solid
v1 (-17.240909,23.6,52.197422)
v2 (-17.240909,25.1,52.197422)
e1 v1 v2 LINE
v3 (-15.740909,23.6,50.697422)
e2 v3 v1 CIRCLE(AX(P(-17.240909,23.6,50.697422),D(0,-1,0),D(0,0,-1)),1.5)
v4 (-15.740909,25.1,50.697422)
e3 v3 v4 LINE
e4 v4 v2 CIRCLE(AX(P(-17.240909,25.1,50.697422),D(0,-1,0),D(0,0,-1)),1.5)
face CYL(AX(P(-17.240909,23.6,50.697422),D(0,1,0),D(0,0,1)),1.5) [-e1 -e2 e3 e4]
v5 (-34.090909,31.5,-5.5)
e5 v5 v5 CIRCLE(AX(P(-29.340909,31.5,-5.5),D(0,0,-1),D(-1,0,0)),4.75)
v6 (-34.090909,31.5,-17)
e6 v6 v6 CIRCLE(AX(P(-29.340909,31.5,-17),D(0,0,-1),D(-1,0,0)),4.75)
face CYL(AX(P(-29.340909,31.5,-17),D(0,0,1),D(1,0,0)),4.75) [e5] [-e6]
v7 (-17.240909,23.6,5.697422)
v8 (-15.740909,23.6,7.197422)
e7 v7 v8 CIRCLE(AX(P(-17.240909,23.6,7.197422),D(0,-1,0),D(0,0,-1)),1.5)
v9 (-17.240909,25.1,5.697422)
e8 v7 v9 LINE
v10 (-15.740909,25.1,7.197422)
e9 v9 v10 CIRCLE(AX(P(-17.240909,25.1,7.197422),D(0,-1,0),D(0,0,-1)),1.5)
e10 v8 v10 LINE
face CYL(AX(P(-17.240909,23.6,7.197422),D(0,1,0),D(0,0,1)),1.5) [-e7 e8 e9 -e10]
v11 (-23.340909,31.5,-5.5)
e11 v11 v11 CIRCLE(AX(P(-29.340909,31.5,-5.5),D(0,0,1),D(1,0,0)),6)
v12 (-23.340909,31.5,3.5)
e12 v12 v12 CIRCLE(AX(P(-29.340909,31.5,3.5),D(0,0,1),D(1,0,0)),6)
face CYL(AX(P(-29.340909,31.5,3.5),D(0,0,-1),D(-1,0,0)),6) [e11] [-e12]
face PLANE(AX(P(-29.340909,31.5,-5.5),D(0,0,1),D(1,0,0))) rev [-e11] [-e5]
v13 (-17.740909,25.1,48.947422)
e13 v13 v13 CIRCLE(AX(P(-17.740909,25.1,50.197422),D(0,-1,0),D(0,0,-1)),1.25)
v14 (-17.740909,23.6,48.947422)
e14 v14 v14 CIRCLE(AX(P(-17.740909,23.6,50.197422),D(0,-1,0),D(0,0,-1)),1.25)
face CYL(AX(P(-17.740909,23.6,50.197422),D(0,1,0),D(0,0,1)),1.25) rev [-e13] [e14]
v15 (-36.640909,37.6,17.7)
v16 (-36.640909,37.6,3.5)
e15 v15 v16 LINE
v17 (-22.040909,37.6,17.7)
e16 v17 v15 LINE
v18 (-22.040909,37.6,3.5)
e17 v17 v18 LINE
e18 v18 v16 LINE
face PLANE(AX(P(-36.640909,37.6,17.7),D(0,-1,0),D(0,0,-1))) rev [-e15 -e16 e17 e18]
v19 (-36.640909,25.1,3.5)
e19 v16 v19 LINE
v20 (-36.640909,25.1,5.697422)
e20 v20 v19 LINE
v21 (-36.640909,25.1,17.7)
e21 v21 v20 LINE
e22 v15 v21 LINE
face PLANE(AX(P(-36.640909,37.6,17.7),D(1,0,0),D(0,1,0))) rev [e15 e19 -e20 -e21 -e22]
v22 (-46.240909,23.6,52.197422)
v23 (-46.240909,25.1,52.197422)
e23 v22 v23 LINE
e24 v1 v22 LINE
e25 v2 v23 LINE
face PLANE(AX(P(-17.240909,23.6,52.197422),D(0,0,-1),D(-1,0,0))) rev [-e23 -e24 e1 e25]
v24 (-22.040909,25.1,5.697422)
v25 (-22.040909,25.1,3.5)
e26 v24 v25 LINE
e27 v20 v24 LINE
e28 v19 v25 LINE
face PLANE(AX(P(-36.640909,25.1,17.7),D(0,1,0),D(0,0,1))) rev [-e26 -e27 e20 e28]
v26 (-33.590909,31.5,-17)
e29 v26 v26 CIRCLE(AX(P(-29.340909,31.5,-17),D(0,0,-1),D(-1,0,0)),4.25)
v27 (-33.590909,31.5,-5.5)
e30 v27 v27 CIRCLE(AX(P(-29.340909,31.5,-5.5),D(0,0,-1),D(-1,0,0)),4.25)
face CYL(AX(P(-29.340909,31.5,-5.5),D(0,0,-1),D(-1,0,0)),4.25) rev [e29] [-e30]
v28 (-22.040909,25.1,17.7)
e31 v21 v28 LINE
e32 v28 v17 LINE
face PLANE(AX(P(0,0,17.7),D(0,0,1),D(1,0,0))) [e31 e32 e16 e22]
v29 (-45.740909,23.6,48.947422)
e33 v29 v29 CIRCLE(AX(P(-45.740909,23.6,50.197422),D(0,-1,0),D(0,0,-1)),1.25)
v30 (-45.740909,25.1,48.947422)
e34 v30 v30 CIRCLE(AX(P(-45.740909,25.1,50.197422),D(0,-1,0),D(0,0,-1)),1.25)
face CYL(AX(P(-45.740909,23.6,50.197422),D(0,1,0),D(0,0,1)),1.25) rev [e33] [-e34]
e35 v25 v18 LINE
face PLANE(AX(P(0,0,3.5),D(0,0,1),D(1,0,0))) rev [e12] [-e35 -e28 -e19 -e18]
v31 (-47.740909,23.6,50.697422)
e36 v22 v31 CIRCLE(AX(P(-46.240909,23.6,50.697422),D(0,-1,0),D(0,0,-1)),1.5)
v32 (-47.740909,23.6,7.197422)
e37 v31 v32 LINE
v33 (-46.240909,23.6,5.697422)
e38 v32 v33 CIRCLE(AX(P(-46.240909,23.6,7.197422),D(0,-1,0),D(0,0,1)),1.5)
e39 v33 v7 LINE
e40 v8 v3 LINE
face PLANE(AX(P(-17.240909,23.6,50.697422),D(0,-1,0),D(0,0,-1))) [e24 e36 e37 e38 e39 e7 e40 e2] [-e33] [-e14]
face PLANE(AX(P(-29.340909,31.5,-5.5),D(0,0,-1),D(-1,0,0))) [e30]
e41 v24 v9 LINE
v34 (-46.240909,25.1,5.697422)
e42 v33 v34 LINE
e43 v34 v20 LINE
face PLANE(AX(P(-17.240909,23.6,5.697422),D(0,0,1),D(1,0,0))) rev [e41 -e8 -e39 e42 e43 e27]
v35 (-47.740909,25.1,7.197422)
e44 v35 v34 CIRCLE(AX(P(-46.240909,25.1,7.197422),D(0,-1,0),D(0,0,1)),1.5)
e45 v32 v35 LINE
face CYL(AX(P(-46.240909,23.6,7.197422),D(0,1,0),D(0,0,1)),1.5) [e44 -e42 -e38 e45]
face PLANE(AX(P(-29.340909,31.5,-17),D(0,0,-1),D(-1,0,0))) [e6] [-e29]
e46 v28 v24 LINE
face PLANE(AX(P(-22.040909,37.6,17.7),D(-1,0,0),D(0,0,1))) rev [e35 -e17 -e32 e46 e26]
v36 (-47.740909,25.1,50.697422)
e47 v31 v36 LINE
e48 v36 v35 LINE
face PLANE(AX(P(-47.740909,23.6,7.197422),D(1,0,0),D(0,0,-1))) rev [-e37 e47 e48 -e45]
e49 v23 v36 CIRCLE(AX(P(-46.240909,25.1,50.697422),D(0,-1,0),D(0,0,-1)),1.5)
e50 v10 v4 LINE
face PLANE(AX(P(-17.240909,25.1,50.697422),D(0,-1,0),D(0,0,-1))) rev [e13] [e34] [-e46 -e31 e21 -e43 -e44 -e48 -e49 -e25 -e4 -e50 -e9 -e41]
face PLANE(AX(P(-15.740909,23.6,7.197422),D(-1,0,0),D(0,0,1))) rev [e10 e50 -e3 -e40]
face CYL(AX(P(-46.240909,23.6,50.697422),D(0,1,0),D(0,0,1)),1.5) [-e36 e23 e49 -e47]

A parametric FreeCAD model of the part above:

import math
import FreeCAD as App
import Part
import Sketcher
from FreeCAD import Vector

doc = App.newDocument("Part")
body = doc.addObject("PartDesign::Body", "Body")

sketch1 = body.newObject("Sketcher::SketchObject", "Sketch")
sketch1.AttachmentSupport = (doc.getObject("XY_Plane"), [""])
sketch1.MapMode = "FlatFace"
sketch1.addGeometry(Part.Circle(Vector(-29, 32, 0), Vector(0, 0, 1), 6), False)
sketch1.addConstraint([
    Sketcher.Constraint("Diameter", 0, 12.0),
    Sketcher.Constraint("DistanceY", -1, 1, 0, 3, 31.5),
    Sketcher.Constraint("DistanceX", 0, 3, -1, 1, 29.340909),
])
pad1 = body.newObject("PartDesign::Pad", "Pad")
pad1.Profile = sketch1
pad1.Type = "TwoLengths"
pad1.Length = 3.5
pad1.Length2 = 5.5

sketch2 = body.newObject("Sketcher::SketchObject", "Sketch001")
sketch2.AttachmentSupport = (doc.getObject("XY_Plane"), [""])
sketch2.MapMode = "FlatFace"
sketch2.AttachmentOffset = App.Placement(Vector(0, 0, -5.5), App.Rotation())
sketch2.addGeometry(Part.Circle(Vector(-29.3, 31.5, 0), Vector(0, 0, 1), 4.8), False)
sketch2.addConstraint([
    Sketcher.Constraint("Diameter", 0, 9.5),
    Sketcher.Constraint("DistanceY", -1, 1, 0, 3, 31.5),
    Sketcher.Constraint("DistanceX", 0, 3, -1, 1, 29.340909),
])
pad2 = body.newObject("PartDesign::Pad", "Pad001")
pad2.Profile = sketch2
pad2.Length = 11.5
pad2.Reversed = True

sketch3 = body.newObject("Sketcher::SketchObject", "Sketch002")
sketch3.AttachmentSupport = (doc.getObject("XY_Plane"), [""])
sketch3.MapMode = "FlatFace"
sketch3.AttachmentOffset = App.Placement(Vector(0, 0, -17), App.Rotation())
sketch3.addGeometry(Part.Circle(Vector(-29.3, 31.5, 0), Vector(0, 0, 1), 4.2), False)
sketch3.addConstraint([
    Sketcher.Constraint("Diameter", 0, 8.5),
    Sketcher.Constraint("DistanceY", -1, 1, 0, 3, 31.5),
    Sketcher.Constraint("DistanceX", 0, 3, -1, 1, 29.340909),
])
pocket1 = body.newObject("PartDesign::Pocket", "Pocket")
pocket1.Profile = sketch3
pocket1.Length = 11.5
pocket1.Reversed = True

sketch4 = body.newObject("Sketcher::SketchObject", "Sketch003")
sketch4.AttachmentSupport = (doc.getObject("XY_Plane"), [""])
sketch4.MapMode = "FlatFace"
sketch4.AttachmentOffset = App.Placement(Vector(0, 0, 3.5), App.Rotation())
sketch4.addGeometry([
    Part.LineSegment(Vector(-37, 38, 0), Vector(-37, 25, 0)),
    Part.LineSegment(Vector(-37, 25, 0), Vector(-22, 25, 0)),
    Part.LineSegment(Vector(-22, 25, 0), Vector(-22, 38, 0)),
    Part.LineSegment(Vector(-22, 38, 0), Vector(-37, 38, 0)),
], False)
sketch4.addConstraint([
    Sketcher.Constraint("Coincident", 0, 2, 1, 1),
    Sketcher.Constraint("Coincident", 1, 2, 2, 1),
    Sketcher.Constraint("Coincident", 2, 2, 3, 1),
    Sketcher.Constraint("Coincident", 3, 2, 0, 1),
    Sketcher.Constraint("Vertical", 0),
    Sketcher.Constraint("Horizontal", 1),
    Sketcher.Constraint("Vertical", 2),
    Sketcher.Constraint("Horizontal", 3),
    Sketcher.Constraint("DistanceX", 1, 1, 1, 2, 14.6),
    Sketcher.Constraint("DistanceY", 0, 2, 0, 1, 12.5),
    Sketcher.Constraint("DistanceY", -1, 1, 0, 2, 25.1),
    Sketcher.Constraint("DistanceX", 0, 2, -1, 1, 36.640909),
])
pad3 = body.newObject("PartDesign::Pad", "Pad002")
pad3.Profile = sketch4
pad3.Length = 14.2

sketch5 = body.newObject("Sketcher::SketchObject", "Sketch004")
sketch5.AttachmentSupport = (doc.getObject("XZ_Plane"), [""])
sketch5.MapMode = "FlatFace"
sketch5.AttachmentOffset = App.Placement(Vector(0, 0, -25.1), App.Rotation())
sketch5.addGeometry([
    Part.LineSegment(Vector(-46.2, 5.7, 0), Vector(-17.2, 5.7, 0)),
    Part.ArcOfCircle(Part.Circle(Vector(-17.2, 7.2, 0), Vector(0, 0, 1), 1.5), math.radians(-90), math.radians(0)),
    Part.LineSegment(Vector(-15.7, 7.2, 0), Vector(-15.7, 50.7, 0)),
    Part.ArcOfCircle(Part.Circle(Vector(-17.2, 50.7, 0), Vector(0, 0, 1), 1.5), math.radians(0), math.radians(90)),
    Part.LineSegment(Vector(-17.2, 52.2, 0), Vector(-46.2, 52.2, 0)),
    Part.ArcOfCircle(Part.Circle(Vector(-46.2, 50.7, 0), Vector(0, 0, 1), 1.5), math.radians(90), math.radians(180)),
    Part.LineSegment(Vector(-47.7, 50.7, 0), Vector(-47.7, 7.2, 0)),
    Part.ArcOfCircle(Part.Circle(Vector(-46.2, 7.2, 0), Vector(0, 0, 1), 1.5), math.radians(180), math.radians(270)),
    Part.Circle(Vector(-17.7, 50.2, 0), Vector(0, 0, 1), 1.2),
    Part.Circle(Vector(-45.7, 50.2, 0), Vector(0, 0, 1), 1.2),
], False)
sketch5.addConstraint([
    Sketcher.Constraint("Tangent", 0, 2, 1, 1),
    Sketcher.Constraint("Tangent", 1, 2, 2, 1),
    Sketcher.Constraint("Tangent", 2, 2, 3, 1),
    Sketcher.Constraint("Tangent", 3, 2, 4, 1),
    Sketcher.Constraint("Tangent", 4, 2, 5, 1),
    Sketcher.Constraint("Tangent", 5, 2, 6, 1),
    Sketcher.Constraint("Tangent", 6, 2, 7, 1),
    Sketcher.Constraint("Tangent", 7, 2, 0, 1),
    Sketcher.Constraint("Horizontal", 0),
    Sketcher.Constraint("Vertical", 2),
    Sketcher.Constraint("Horizontal", 4),
    Sketcher.Constraint("Vertical", 6),
    Sketcher.Constraint("Equal", 1, 3),
    Sketcher.Constraint("Equal", 3, 5),
    Sketcher.Constraint("Equal", 5, 7),
    Sketcher.Constraint("Equal", 8, 9),
    Sketcher.Constraint("Horizontal", 8, 3, 9, 3),
    Sketcher.Constraint("Diameter", 8, 2.5),
    Sketcher.Constraint("Radius", 1, 1.5),
    Sketcher.Constraint("DistanceX", 0, 1, 0, 2, 29.0),
    Sketcher.Constraint("DistanceY", 2, 1, 2, 2, 43.5),
    Sketcher.Constraint("DistanceY", 1, 3, 8, 3, 43.0),
    Sketcher.Constraint("DistanceX", 9, 3, 8, 3, 28.0),
    Sketcher.Constraint("DistanceX", 8, 3, 1, 2, 2.0),
    Sketcher.Constraint("DistanceX", 1, 3, -1, 1, 17.240909),
    Sketcher.Constraint("DistanceY", -1, 1, 1, 3, 7.197422),
])
pad4 = body.newObject("PartDesign::Pad", "Pad003")
pad4.Profile = sketch5
pad4.Length = 1.5

doc.recompute()
